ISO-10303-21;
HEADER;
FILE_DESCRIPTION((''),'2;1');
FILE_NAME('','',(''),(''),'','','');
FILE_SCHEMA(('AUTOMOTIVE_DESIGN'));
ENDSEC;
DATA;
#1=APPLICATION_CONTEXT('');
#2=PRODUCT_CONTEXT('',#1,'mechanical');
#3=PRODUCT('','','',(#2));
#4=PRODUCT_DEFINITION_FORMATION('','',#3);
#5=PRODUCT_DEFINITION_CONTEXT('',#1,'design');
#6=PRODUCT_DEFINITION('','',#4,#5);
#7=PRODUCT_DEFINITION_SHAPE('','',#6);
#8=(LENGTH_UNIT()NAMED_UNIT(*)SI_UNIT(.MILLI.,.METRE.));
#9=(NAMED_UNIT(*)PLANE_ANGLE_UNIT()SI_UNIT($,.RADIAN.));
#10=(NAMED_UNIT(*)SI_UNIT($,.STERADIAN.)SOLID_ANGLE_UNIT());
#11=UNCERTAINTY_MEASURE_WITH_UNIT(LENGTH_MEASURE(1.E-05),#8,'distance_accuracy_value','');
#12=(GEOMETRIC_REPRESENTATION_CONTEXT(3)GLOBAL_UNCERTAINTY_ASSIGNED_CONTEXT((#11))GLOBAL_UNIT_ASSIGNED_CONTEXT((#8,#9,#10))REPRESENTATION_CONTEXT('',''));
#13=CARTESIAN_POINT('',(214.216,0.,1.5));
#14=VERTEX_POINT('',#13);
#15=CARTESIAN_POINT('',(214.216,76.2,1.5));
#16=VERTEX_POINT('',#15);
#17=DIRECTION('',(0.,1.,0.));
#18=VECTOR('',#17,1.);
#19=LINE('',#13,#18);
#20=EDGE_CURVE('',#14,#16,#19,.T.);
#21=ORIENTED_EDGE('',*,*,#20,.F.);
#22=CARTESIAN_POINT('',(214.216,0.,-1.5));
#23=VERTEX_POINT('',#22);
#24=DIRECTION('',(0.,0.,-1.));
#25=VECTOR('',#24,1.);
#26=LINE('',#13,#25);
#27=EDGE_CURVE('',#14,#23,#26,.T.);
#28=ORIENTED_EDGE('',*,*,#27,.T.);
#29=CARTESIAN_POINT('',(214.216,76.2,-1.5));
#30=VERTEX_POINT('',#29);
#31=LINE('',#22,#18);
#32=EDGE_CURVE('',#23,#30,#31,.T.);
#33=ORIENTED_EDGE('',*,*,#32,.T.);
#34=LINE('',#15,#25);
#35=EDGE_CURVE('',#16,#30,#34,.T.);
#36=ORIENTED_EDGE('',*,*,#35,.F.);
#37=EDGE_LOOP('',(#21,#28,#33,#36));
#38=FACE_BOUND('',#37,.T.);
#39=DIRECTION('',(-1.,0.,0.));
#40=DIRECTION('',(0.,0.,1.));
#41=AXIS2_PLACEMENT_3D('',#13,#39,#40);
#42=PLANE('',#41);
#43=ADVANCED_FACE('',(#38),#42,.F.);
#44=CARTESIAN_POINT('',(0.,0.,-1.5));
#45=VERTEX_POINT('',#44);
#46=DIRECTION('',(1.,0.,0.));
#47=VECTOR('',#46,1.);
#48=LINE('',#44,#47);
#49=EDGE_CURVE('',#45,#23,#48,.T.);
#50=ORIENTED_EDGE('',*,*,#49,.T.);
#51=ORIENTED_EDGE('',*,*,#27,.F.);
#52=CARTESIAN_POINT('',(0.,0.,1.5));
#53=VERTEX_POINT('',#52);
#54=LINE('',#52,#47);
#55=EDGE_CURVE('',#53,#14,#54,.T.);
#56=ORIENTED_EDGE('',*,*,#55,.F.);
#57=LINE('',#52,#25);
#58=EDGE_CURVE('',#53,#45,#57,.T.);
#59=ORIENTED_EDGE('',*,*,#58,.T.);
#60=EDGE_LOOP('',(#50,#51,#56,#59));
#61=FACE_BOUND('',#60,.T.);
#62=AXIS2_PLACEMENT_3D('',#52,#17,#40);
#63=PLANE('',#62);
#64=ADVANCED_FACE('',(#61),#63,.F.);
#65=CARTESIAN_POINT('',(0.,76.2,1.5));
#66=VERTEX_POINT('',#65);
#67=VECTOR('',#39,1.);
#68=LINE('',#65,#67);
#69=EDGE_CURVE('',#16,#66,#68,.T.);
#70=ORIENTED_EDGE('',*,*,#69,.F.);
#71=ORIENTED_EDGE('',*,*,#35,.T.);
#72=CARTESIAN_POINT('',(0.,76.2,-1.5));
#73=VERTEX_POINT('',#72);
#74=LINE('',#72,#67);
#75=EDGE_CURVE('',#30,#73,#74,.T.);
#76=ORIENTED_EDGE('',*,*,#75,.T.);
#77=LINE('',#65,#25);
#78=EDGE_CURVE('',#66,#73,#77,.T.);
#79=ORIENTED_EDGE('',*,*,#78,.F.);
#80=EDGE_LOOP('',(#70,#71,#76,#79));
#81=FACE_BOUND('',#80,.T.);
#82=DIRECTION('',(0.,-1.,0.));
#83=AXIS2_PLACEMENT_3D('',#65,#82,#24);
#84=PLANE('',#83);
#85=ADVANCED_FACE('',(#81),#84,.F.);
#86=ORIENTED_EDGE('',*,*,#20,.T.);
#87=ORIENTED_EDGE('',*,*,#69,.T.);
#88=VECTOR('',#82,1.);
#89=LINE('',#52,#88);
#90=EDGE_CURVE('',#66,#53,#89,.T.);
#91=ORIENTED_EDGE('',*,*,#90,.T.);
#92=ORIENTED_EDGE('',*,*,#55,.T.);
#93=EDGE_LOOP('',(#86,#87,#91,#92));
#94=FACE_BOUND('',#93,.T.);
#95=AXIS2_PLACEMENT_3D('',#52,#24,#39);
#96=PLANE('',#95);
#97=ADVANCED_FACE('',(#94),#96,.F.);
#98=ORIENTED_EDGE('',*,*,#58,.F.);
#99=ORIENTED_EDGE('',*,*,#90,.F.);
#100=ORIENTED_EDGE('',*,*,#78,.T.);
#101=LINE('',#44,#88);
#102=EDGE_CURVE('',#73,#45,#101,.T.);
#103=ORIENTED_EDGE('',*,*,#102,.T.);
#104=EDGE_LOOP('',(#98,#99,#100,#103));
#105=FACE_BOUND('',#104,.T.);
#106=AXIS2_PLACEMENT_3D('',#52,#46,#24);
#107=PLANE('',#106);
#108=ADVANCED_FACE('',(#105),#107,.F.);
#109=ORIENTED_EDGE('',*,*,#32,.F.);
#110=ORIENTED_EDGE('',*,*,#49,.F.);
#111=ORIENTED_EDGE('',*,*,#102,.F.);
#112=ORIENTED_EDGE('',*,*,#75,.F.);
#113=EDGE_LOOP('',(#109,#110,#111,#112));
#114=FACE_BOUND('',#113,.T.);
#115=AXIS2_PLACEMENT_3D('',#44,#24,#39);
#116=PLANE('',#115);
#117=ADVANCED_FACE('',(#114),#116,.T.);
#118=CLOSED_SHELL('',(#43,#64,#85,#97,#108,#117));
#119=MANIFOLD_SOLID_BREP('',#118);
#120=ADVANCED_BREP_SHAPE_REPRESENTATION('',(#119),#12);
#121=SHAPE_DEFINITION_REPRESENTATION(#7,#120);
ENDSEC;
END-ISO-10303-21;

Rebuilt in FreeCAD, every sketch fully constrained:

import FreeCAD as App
import Part
import Sketcher

doc = App.newDocument("Part")
params = doc.addObject("Spreadsheet::Sheet", "Params")
for row, (alias, value) in enumerate([
    ("sketch1_height", "76.2 mm"),
    ("pad1_length", "3 mm"),
], start=1):
    params.set(f"A{row}", alias)
    params.set(f"B{row}", "=" + value)
    params.setAlias(f"B{row}", alias)

body = doc.addObject("PartDesign::Body", "Body")

# Sketch on XY plane
sketch1 = doc.addObject("Sketcher::SketchObject", "Sketch")
body.addObject(sketch1)
sketch1.AttachmentSupport = (doc.XY_Plane, [""])
sketch1.MapMode = "FlatFace"
sketch1.addGeometry(Part.LineSegment(App.Vector(0, 76, 0), App.Vector(0, 0, 0)), False)
sketch1.addGeometry(Part.LineSegment(App.Vector(0, 0, 0), App.Vector(214, 0, 0)), False)
sketch1.addGeometry(Part.LineSegment(App.Vector(214, 0, 0), App.Vector(214, 76, 0)), False)
sketch1.addGeometry(Part.LineSegment(App.Vector(214, 76, 0), App.Vector(0, 76, 0)), False)
sketch1.addConstraint(Sketcher.Constraint("Coincident", 0, 2, 1, 1))
sketch1.addConstraint(Sketcher.Constraint("Coincident", 1, 2, 2, 1))
sketch1.addConstraint(Sketcher.Constraint("Coincident", 2, 2, 3, 1))
sketch1.addConstraint(Sketcher.Constraint("Coincident", 3, 2, 0, 1))
sketch1.addConstraint(Sketcher.Constraint("Vertical", 0))
sketch1.addConstraint(Sketcher.Constraint("Horizontal", 1))
sketch1.addConstraint(Sketcher.Constraint("Vertical", 2))
sketch1.addConstraint(Sketcher.Constraint("Horizontal", 3))
sketch1.addConstraint(Sketcher.Constraint("Coincident", 0, 2, -1, 1))
sketch1.addConstraint(Sketcher.Constraint("DistanceY", 0, 2, 0, 1, 76.2))
sketch1.addConstraint(Sketcher.Constraint("DistanceX", 1, 1, 1, 2, 214.216))
sketch1.setExpression("Constraints[9]", "Params.sketch1_height")
pad1 = doc.addObject("PartDesign::Pad", "Pad")
body.addObject(pad1)
pad1.Profile = sketch1
pad1.setExpression("Length", "Params.pad1_length")
pad1.Midplane = True

doc.recompute()
